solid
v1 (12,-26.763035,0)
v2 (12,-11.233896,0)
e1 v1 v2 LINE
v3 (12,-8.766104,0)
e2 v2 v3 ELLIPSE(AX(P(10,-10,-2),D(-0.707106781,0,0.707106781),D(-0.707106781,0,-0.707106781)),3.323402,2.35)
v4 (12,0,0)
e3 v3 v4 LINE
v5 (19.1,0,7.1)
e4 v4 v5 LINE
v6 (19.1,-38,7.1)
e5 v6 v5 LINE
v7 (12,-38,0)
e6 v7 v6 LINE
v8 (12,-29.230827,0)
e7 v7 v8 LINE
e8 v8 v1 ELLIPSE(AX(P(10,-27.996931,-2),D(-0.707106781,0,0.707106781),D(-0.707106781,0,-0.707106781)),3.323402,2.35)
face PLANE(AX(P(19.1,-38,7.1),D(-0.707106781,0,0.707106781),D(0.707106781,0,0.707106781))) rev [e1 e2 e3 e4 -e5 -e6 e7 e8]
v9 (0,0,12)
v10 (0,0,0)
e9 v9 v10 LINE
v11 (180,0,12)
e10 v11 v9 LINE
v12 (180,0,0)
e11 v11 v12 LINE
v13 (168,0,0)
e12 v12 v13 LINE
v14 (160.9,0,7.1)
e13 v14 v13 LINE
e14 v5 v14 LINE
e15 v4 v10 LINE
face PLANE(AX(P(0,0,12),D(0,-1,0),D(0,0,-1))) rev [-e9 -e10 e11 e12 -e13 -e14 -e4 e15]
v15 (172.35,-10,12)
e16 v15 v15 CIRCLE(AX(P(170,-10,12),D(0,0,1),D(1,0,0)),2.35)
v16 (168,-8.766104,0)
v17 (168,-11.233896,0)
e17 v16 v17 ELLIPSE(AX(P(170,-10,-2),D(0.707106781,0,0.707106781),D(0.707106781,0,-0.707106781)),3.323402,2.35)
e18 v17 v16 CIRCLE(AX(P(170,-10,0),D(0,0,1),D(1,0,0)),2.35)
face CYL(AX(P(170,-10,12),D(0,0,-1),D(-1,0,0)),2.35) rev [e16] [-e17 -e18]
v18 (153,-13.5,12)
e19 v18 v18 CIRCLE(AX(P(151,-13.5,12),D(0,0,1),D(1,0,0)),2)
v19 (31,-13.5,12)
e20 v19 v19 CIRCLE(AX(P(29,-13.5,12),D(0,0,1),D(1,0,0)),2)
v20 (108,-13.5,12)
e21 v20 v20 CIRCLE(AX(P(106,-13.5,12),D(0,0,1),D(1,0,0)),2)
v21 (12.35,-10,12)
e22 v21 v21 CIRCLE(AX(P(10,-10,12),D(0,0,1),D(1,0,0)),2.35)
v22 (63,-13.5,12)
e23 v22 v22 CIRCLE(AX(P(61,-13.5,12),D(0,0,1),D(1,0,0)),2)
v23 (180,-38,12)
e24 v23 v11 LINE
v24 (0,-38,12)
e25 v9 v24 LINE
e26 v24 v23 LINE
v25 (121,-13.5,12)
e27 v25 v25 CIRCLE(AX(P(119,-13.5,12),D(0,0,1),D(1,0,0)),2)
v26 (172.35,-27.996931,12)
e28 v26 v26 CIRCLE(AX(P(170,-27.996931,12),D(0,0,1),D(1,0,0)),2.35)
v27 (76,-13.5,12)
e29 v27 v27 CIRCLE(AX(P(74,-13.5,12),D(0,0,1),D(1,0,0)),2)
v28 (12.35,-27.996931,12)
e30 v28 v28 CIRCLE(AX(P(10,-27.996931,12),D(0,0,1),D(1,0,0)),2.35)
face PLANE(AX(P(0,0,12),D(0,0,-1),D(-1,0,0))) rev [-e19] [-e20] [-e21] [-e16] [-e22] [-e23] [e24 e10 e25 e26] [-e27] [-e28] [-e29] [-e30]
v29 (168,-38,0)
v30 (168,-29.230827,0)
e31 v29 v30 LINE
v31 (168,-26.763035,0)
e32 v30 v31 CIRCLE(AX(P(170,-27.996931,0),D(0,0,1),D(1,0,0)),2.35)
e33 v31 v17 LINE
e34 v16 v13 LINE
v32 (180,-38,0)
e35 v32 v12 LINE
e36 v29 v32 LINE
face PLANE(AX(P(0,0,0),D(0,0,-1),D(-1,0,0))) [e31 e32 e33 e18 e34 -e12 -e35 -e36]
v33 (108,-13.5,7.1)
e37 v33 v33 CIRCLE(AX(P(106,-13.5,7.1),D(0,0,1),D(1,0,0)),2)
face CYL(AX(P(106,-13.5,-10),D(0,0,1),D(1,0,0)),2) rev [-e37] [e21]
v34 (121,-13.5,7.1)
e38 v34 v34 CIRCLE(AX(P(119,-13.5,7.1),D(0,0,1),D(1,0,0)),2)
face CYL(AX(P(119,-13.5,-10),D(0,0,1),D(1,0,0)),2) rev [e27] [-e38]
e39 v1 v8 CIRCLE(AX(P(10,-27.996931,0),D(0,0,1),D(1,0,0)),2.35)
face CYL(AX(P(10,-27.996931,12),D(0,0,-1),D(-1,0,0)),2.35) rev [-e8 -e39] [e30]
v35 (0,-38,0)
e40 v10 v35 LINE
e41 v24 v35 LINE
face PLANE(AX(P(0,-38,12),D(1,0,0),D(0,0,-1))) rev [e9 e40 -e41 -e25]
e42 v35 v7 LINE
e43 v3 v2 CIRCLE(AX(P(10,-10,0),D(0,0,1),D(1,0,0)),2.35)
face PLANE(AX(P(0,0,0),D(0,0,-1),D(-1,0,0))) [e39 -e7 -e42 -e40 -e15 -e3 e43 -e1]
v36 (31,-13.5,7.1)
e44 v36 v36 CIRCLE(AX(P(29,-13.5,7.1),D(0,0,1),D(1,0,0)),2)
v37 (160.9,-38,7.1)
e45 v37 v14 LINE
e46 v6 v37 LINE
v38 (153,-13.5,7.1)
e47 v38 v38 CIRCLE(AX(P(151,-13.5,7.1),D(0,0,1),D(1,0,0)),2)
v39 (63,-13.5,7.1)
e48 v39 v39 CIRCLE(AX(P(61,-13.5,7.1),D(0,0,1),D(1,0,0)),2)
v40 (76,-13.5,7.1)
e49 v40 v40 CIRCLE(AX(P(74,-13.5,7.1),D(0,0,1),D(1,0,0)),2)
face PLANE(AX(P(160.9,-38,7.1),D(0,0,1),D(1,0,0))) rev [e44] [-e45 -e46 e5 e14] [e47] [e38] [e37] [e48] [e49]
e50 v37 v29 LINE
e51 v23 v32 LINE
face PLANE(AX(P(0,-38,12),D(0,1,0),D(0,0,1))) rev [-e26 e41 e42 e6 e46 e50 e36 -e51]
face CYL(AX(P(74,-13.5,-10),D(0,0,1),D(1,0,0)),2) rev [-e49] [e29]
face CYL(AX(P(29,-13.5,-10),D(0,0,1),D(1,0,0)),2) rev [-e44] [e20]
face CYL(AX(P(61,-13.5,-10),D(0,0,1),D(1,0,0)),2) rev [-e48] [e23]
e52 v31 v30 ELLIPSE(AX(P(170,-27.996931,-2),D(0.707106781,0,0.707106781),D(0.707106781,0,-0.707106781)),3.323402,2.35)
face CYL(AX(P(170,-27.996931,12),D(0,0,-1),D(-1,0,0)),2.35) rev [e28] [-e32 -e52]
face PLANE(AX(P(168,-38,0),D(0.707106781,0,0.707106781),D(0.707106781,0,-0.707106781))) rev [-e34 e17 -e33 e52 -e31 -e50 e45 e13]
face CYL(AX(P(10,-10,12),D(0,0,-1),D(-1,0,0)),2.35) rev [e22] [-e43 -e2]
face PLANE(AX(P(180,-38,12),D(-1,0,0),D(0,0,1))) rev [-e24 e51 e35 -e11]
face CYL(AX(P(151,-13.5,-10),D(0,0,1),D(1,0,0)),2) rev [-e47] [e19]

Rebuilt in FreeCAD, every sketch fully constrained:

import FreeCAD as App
import Part
import Sketcher
from FreeCAD import Vector
Q = App.Units.Quantity


def add_polygon(sketch, points):
    """Adds a closed chain of lines whose ends are joined by coincident constraints."""
    first, n = sketch.GeometryCount, len(points)
    for a, b in zip(points, points[1:] + points[:1]):
        sketch.addGeometry(Part.LineSegment(App.Vector(*a, 0), App.Vector(*b, 0)), False)
    for i in range(n):
        sketch.addConstraint(Sketcher.Constraint("Coincident", first + i, 2, first + (i + 1) % n, 1))

doc = App.newDocument("Part")
body = doc.addObject("PartDesign::Body", "Body")

sketch1 = body.newObject("Sketcher::SketchObject", "Sketch")
sketch1.AttachmentSupport = (doc.getObject("XY_Plane"), [""])
sketch1.MapMode = "FlatFace"
add_polygon(sketch1, [(0, 0), (0, -38), (180, -38), (180, 0)])
sketch1.addGeometry(Part.Circle(Vector(10, -28, 0), Vector(0, 0, 1), 2.4), False)
sketch1.addGeometry(Part.Circle(Vector(170, -28, 0), Vector(0, 0, 1), 2.4), False)
sketch1.addGeometry(Part.Circle(Vector(10, -10, 0), Vector(0, 0, 1), 2.4), False)
sketch1.addGeometry(Part.Circle(Vector(170, -10, 0), Vector(0, 0, 1), 2.4), False)
sketch1.addConstraint([
    Sketcher.Constraint("Vertical", 0),
    Sketcher.Constraint("Horizontal", 1),
    Sketcher.Constraint("Vertical", 2),
    Sketcher.Constraint("Horizontal", 3),
    Sketcher.Constraint("Coincident", 3, 2, -1, 1),
    Sketcher.Constraint("Equal", 4, 5),
    Sketcher.Constraint("Equal", 5, 6),
    Sketcher.Constraint("Equal", 6, 7),
    Sketcher.Constraint("Horizontal", 4, 3, 5, 3),
    Sketcher.Constraint("Horizontal", 6, 3, 7, 3),
    Sketcher.Constraint("Vertical", 4, 3, 6, 3),
    Sketcher.Constraint("Vertical", 5, 3, 7, 3),
    Sketcher.Constraint("Diameter", 4, Q("4.7 mm")),
    Sketcher.Constraint("DistanceX", 1, 1, 1, 2, Q("180 mm")),
    Sketcher.Constraint("DistanceY", 0, 2, 0, 1, Q("38 mm")),
    Sketcher.Constraint("DistanceX", -1, 1, 4, 3, Q("10 mm")),
    Sketcher.Constraint("DistanceX", -1, 1, 5, 3, Q("170 mm")),
    Sketcher.Constraint("DistanceY", 6, 3, -1, 1, Q("10 mm")),
    Sketcher.Constraint("DistanceY", 4, 3, -1, 1, Q("27.996931 mm")),
])
pad1 = body.newObject("PartDesign::Pad", "Pad")
pad1.Profile = sketch1
pad1.Length = 12

sketch2 = body.newObject("Sketcher::SketchObject", "Sketch001")
sketch2.AttachmentSupport = (doc.getObject("XZ_Plane"), [""])
sketch2.MapMode = "FlatFace"
add_polygon(sketch2, [(161, 7), (168, 0), (12, 0), (19, 7)])
sketch2.addConstraint([
    Sketcher.Constraint("Horizontal", 1),
    Sketcher.Constraint("Horizontal", 3),
    Sketcher.Constraint("PointOnObject", 0, 2, -1),
    Sketcher.Constraint("Perpendicular", 0, 2),
    Sketcher.Constraint("Equal", 0, 2),
    Sketcher.Constraint("DistanceX", 1, 2, 1, 1, Q("156 mm")),
    Sketcher.Constraint("DistanceX", 3, 1, 3, 2, Q("141.8 mm")),
    Sketcher.Constraint("DistanceX", -1, 1, 0, 2, Q("168 mm")),
])
pocket1 = body.newObject("PartDesign::Pocket", "Pocket")
pocket1.Profile = sketch2
pocket1.Length = 38
pocket1.Reversed = True

sketch3 = body.newObject("Sketcher::SketchObject", "Sketch002")
sketch3.AttachmentSupport = (doc.getObject("XY_Plane"), [""])
sketch3.MapMode = "FlatFace"
sketch3.AttachmentOffset = App.Placement(Vector(0, 0, 12), App.Rotation())
sketch3.addGeometry([
    Part.Circle(Vector(151, -13.5, 0), Vector(0, 0, 1), 2),
    Part.Circle(Vector(119, -13.5, 0), Vector(0, 0, 1), 2),
    Part.Circle(Vector(106, -13.5, 0), Vector(0, 0, 1), 2),
    Part.Circle(Vector(74, -13.5, 0), Vector(0, 0, 1), 2),
    Part.Circle(Vector(61, -13.5, 0), Vector(0, 0, 1), 2),
    Part.Circle(Vector(29, -13.5, 0), Vector(0, 0, 1), 2),
], False)
sketch3.addConstraint([
    Sketcher.Constraint("Equal", 0, 1),
    Sketcher.Constraint("Equal", 1, 2),
    Sketcher.Constraint("Equal", 2, 3),
    Sketcher.Constraint("Equal", 3, 4),
    Sketcher.Constraint("Equal", 4, 5),
    Sketcher.Constraint("Horizontal", 0, 3, 1, 3),
    Sketcher.Constraint("Horizontal", 1, 3, 2, 3),
    Sketcher.Constraint("Horizontal", 2, 3, 3, 3),
    Sketcher.Constraint("Horizontal", 3, 3, 4, 3),
    Sketcher.Constraint("Horizontal", 4, 3, 5, 3),
    Sketcher.Constraint("Diameter", 0, Q("4 mm")),
    Sketcher.Constraint("DistanceX", -1, 1, 0, 3, Q("151 mm")),
    Sketcher.Constraint("DistanceX", -1, 1, 1, 3, Q("119 mm")),
    Sketcher.Constraint("DistanceX", -1, 1, 2, 3, Q("106 mm")),
    Sketcher.Constraint("DistanceX", -1, 1, 3, 3, Q("74 mm")),
    Sketcher.Constraint("DistanceX", -1, 1, 4, 3, Q("61 mm")),
    Sketcher.Constraint("DistanceX", -1, 1, 5, 3, Q("29 mm")),
    Sketcher.Constraint("DistanceY", 0, 3, -1, 1, Q("13.5 mm")),
])
pocket2 = body.newObject("PartDesign::Pocket", "Pocket001")
pocket2.Profile = sketch3
pocket2.Length = 22

doc.recompute()
